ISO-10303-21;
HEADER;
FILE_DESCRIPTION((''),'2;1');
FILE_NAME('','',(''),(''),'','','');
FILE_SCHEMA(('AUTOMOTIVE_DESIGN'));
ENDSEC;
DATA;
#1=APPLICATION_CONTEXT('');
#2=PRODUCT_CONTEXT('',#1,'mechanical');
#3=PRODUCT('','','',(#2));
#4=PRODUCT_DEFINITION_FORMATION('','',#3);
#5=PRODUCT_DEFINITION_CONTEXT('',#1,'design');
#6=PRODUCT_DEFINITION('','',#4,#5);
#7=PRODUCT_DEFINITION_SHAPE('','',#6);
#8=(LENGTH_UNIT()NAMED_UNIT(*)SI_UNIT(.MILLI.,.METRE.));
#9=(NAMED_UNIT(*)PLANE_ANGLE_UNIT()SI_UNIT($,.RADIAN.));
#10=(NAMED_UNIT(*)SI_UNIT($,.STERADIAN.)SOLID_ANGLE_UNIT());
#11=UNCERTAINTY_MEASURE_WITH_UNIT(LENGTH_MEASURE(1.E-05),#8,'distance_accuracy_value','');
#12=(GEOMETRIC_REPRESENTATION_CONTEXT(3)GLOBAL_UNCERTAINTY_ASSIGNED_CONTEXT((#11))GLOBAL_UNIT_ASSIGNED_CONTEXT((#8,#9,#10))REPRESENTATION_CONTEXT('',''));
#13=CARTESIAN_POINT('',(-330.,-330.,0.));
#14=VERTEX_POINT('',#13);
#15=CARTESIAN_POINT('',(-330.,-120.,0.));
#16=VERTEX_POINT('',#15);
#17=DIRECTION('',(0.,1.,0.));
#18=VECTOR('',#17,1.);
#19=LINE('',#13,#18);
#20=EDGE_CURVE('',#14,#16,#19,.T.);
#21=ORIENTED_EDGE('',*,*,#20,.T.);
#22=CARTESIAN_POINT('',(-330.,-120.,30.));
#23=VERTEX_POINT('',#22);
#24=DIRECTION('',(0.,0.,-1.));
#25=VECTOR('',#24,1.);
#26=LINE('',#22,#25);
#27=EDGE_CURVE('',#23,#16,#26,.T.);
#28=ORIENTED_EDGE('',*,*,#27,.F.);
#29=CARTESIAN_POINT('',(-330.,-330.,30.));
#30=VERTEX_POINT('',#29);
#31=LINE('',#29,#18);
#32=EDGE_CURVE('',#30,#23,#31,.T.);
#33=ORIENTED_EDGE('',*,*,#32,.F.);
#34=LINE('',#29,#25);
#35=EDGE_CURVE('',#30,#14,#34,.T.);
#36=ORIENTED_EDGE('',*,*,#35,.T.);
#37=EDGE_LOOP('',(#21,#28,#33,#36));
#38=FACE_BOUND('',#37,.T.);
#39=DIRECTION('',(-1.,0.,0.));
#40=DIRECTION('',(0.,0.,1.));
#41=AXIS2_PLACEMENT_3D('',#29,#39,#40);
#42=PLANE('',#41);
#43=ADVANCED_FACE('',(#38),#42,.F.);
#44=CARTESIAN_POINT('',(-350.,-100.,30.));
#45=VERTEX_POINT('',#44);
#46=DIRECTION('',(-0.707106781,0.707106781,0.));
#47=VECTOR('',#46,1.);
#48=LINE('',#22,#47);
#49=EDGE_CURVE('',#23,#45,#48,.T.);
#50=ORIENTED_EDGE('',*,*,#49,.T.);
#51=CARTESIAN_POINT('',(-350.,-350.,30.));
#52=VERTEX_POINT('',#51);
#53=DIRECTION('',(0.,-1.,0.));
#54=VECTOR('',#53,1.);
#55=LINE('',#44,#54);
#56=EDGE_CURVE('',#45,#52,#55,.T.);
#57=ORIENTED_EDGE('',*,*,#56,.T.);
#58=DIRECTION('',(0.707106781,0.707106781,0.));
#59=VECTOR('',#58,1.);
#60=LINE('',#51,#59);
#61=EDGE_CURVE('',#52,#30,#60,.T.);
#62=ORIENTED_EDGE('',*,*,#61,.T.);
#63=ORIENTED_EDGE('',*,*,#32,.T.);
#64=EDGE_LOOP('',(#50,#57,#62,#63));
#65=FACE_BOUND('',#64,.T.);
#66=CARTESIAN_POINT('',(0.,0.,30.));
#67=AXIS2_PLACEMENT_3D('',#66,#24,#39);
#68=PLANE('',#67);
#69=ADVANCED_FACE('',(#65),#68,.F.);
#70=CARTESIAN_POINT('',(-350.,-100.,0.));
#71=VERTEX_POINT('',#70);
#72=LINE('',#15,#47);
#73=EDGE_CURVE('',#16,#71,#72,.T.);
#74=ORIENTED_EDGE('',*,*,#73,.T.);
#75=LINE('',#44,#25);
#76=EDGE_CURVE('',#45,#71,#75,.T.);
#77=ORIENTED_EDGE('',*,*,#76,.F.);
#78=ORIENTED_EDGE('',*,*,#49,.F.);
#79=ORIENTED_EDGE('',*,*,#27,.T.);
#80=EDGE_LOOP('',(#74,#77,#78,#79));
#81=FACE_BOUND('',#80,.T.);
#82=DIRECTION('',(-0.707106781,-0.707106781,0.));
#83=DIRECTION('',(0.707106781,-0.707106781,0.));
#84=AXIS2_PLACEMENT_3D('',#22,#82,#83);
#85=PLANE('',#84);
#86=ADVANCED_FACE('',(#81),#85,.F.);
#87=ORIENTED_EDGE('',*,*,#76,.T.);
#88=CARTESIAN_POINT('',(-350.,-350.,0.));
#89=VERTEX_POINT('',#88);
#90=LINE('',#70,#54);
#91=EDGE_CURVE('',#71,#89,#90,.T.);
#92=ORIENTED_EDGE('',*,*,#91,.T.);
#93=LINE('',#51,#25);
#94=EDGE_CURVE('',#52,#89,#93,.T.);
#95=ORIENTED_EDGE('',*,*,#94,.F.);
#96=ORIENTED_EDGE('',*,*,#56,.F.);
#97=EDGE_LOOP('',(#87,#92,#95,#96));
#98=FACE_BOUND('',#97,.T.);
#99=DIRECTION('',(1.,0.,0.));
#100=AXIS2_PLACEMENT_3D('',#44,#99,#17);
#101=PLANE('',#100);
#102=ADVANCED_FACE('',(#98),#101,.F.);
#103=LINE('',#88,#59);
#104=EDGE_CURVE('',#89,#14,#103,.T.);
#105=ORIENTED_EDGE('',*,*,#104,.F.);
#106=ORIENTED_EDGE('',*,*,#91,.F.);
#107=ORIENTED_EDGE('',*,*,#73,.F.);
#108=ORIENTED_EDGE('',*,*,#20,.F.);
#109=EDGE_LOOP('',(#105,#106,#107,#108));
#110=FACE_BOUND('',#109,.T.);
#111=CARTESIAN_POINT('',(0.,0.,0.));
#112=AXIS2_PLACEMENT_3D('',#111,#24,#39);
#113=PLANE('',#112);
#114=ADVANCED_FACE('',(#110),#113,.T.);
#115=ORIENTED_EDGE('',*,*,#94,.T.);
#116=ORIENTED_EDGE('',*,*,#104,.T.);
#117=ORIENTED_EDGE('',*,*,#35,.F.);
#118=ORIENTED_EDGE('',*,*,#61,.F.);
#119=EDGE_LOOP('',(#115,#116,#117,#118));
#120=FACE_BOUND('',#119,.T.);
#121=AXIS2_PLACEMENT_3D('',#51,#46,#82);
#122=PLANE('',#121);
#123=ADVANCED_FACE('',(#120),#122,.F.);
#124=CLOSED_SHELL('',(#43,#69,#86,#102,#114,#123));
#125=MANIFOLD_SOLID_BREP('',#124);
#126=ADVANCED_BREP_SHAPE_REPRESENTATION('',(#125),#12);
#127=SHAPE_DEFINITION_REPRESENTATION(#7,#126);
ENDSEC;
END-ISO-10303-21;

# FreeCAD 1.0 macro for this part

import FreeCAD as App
import Part
import Sketcher

V = App.Vector
Q = App.Units.Quantity


def add_polygon(sketch, points):
    """Adds a closed chain of lines whose ends are joined by coincident constraints."""
    first, n = sketch.GeometryCount, len(points)
    for a, b in zip(points, points[1:] + points[:1]):
        sketch.addGeometry(Part.LineSegment(App.Vector(*a, 0), App.Vector(*b, 0)), False)
    for i in range(n):
        sketch.addConstraint(Sketcher.Constraint("Coincident", first + i, 2, first + (i + 1) % n, 1))

doc = App.newDocument("Part")
body = doc.addObject("PartDesign::Body", "Body")

# Sketch on XY plane
sketch1 = doc.addObject("Sketcher::SketchObject", "Sketch")
body.addObject(sketch1)
sketch1.AttachmentSupport = (doc.XY_Plane, [""])
sketch1.MapMode = "FlatFace"
add_polygon(sketch1, [(-350, -100), (-350, -350), (-330, -330), (-330, -120)])  # lines 0-3
sketch1.addConstraint([
    Sketcher.Constraint("Vertical", 0),
    Sketcher.Constraint("Vertical", 2),
    Sketcher.Constraint("Perpendicular", 1, 3),
    Sketcher.Constraint("Equal", 1, 3),
    Sketcher.Constraint("DistanceY", 0, 2, 0, 1, Q("250 mm")),
    Sketcher.Constraint("DistanceY", 2, 1, 2, 2, Q("210 mm")),
    Sketcher.Constraint("DistanceX", 0, 2, -1, 1, Q("350 mm")),
    Sketcher.Constraint("DistanceY", 0, 2, -1, 1, Q("350 mm")),
])
pad1 = doc.addObject("PartDesign::Pad", "Pad")
body.addObject(pad1)
pad1.Profile = sketch1
pad1.Length = 30

doc.recompute()
